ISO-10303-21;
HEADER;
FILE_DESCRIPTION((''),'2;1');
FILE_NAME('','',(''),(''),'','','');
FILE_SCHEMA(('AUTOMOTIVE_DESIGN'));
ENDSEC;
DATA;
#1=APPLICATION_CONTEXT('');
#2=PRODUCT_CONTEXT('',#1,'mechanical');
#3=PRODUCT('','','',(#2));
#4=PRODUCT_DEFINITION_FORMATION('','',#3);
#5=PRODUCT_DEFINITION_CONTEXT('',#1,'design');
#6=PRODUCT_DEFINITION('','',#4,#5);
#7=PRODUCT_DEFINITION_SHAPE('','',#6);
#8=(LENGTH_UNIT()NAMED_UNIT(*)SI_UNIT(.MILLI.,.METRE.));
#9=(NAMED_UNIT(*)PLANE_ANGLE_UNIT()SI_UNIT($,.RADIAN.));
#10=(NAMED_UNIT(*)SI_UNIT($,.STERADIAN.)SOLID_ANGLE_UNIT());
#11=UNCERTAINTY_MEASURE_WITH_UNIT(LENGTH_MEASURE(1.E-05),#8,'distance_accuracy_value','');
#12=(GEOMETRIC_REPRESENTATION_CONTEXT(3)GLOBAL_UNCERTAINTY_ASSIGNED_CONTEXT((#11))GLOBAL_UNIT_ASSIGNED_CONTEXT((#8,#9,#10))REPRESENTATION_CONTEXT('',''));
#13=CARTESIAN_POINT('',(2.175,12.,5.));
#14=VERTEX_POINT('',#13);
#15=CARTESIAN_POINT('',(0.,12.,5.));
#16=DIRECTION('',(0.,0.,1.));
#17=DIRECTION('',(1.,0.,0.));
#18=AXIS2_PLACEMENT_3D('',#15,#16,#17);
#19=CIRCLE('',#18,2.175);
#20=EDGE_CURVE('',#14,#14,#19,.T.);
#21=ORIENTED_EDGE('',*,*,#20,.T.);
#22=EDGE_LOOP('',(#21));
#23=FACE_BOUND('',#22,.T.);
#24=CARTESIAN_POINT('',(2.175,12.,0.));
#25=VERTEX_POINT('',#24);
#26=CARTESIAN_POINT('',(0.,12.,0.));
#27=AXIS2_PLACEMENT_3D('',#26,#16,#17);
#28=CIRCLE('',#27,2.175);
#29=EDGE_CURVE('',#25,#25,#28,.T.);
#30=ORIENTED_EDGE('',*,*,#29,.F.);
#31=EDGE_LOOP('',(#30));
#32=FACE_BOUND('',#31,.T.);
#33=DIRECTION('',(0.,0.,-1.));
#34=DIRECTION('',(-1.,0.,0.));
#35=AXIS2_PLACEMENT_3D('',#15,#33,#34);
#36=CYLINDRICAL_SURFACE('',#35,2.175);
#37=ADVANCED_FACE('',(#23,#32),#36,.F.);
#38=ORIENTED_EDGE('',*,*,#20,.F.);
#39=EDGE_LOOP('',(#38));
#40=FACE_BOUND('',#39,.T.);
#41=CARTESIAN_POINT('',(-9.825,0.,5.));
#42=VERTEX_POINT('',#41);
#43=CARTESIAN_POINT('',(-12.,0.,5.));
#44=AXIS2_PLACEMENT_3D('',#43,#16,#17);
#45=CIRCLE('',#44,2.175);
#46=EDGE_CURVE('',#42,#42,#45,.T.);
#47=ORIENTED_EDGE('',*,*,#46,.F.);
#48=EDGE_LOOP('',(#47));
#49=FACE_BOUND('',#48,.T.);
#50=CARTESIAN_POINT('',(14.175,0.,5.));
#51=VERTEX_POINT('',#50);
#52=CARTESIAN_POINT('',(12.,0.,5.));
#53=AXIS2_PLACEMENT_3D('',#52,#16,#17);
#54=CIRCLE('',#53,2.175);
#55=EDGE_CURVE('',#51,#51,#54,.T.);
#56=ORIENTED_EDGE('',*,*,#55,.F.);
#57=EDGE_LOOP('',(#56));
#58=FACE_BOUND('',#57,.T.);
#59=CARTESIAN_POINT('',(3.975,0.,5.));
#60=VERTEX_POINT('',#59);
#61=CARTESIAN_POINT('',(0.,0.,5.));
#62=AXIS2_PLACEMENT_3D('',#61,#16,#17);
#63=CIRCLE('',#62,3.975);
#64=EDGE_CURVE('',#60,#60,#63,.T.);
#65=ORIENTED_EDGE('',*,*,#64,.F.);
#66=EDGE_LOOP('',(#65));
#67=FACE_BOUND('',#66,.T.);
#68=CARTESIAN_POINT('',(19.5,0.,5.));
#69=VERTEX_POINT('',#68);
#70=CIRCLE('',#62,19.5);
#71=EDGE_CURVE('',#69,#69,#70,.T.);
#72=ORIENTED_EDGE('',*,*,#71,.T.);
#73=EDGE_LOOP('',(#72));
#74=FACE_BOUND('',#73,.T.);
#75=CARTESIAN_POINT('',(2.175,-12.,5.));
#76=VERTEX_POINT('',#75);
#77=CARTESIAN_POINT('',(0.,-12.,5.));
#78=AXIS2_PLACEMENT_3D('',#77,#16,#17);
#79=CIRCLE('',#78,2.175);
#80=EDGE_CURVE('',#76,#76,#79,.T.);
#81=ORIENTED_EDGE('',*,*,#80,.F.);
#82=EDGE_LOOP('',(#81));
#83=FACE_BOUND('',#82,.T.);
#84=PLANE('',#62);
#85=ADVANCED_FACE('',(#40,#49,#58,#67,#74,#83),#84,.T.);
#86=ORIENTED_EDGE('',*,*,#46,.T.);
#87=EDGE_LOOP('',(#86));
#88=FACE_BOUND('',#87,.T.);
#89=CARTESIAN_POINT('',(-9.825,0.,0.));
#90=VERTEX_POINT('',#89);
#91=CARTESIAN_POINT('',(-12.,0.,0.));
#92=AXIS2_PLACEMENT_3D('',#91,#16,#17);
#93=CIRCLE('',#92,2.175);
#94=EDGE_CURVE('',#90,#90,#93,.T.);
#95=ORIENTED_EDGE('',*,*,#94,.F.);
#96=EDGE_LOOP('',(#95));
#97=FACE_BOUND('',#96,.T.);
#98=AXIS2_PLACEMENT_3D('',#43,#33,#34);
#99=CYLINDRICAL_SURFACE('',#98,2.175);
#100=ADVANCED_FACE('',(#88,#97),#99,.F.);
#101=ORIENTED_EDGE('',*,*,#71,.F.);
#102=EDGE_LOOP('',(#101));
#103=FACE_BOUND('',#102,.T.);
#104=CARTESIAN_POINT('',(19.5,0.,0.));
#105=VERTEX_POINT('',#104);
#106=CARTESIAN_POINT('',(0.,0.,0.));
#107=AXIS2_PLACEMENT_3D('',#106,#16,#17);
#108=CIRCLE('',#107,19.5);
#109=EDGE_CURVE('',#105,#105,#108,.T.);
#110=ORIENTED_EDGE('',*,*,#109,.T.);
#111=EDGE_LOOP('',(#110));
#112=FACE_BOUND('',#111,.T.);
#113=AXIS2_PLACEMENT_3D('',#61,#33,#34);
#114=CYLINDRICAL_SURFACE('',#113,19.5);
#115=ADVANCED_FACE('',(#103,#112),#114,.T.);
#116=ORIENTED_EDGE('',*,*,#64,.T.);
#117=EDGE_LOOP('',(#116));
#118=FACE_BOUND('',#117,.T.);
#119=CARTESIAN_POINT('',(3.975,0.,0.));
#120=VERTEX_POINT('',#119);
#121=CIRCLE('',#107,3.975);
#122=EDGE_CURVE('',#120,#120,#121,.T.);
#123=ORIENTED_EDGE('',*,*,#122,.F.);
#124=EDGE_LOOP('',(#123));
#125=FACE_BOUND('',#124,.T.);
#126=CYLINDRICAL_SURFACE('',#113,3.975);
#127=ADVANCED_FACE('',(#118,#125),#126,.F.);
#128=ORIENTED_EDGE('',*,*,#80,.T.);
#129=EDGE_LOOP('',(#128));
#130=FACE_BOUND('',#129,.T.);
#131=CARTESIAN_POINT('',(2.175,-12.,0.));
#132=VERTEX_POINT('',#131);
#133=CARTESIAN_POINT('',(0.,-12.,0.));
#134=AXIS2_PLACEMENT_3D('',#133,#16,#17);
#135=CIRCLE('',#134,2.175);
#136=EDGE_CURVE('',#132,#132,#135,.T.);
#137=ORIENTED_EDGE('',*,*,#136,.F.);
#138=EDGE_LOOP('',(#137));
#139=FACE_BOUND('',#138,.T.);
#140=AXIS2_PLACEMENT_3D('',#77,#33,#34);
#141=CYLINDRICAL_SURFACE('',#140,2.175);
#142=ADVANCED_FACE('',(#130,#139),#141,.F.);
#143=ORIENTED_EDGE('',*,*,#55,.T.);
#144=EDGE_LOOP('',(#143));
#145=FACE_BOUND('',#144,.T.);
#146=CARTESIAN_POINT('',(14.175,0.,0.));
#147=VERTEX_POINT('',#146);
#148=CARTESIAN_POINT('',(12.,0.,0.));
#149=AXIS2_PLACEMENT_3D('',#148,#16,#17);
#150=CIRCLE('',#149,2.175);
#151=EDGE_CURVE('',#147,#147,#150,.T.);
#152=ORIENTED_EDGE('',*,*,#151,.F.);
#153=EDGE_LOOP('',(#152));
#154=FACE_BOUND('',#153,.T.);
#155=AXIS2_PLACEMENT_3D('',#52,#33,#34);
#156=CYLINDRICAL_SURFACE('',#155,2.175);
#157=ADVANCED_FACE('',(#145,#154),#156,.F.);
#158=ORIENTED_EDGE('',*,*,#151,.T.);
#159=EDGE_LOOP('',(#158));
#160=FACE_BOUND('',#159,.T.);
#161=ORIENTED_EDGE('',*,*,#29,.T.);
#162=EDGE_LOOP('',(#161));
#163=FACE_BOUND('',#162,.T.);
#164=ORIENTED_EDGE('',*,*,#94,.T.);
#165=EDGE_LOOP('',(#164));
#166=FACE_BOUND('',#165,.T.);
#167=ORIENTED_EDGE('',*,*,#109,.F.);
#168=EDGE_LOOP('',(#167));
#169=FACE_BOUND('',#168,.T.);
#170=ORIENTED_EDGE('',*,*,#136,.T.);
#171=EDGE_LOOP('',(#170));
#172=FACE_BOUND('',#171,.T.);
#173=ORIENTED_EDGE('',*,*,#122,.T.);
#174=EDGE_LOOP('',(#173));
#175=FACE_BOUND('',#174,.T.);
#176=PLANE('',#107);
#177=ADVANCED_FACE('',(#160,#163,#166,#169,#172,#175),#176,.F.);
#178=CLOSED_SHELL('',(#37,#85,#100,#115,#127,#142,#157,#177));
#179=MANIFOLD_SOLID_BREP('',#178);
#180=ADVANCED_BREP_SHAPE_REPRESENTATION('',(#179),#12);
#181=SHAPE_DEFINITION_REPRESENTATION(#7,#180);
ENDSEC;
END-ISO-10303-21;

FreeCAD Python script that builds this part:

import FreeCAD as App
import Part
import Sketcher

doc = App.newDocument("Part")
body = doc.addObject("PartDesign::Body", "Body")

# Sketch on XY plane
sketch1 = doc.addObject("Sketcher::SketchObject", "Sketch")
body.addObject(sketch1)
sketch1.AttachmentSupport = (doc.XY_Plane, [""])
sketch1.MapMode = "FlatFace"
sketch1.addGeometry([
    Part.Circle(App.Vector(0, 0, 0), App.Vector(0, 0, 1), 19.5),  # 0
    Part.Circle(App.Vector(0, -12, 0), App.Vector(0, 0, 1), 2.2),  # 1
    Part.Circle(App.Vector(-12, 0, 0), App.Vector(0, 0, 1), 2.2),  # 2
    Part.Circle(App.Vector(0, 0, 0), App.Vector(0, 0, 1), 4),  # 3
    Part.Circle(App.Vector(12, 0, 0), App.Vector(0, 0, 1), 2.2),  # 4
    Part.Circle(App.Vector(0, 12, 0), App.Vector(0, 0, 1), 2.2),  # 5
], False)
sketch1.addConstraint([
    Sketcher.Constraint("Coincident", 0, 3, -1, 1),
    Sketcher.Constraint("Coincident", 3, 3, -1, 1),
    Sketcher.Constraint("Equal", 1, 2),
    Sketcher.Constraint("Equal", 2, 4),
    Sketcher.Constraint("Equal", 4, 5),
    Sketcher.Constraint("Symmetric", 2, 3, 4, 3, -1, 1),
    Sketcher.Constraint("Symmetric", 1, 3, 5, 3, -1, 1),
    Sketcher.Constraint("PointOnObject", 1, 3, -2),
    Sketcher.Constraint("PointOnObject", 2, 3, -1),
    Sketcher.Constraint("Diameter", 0, 39.0),
    Sketcher.Constraint("Diameter", 1, 4.35),
    Sketcher.Constraint("Diameter", 3, 7.95),
    Sketcher.Constraint("DistanceY", 1, 3, -1, 1, 12.0),
    Sketcher.Constraint("DistanceX", 2, 3, -1, 1, 12.0),
])
pad1 = doc.addObject("PartDesign::Pad", "Pad")
body.addObject(pad1)
pad1.Profile = sketch1
pad1.Length = 5

doc.recompute()
